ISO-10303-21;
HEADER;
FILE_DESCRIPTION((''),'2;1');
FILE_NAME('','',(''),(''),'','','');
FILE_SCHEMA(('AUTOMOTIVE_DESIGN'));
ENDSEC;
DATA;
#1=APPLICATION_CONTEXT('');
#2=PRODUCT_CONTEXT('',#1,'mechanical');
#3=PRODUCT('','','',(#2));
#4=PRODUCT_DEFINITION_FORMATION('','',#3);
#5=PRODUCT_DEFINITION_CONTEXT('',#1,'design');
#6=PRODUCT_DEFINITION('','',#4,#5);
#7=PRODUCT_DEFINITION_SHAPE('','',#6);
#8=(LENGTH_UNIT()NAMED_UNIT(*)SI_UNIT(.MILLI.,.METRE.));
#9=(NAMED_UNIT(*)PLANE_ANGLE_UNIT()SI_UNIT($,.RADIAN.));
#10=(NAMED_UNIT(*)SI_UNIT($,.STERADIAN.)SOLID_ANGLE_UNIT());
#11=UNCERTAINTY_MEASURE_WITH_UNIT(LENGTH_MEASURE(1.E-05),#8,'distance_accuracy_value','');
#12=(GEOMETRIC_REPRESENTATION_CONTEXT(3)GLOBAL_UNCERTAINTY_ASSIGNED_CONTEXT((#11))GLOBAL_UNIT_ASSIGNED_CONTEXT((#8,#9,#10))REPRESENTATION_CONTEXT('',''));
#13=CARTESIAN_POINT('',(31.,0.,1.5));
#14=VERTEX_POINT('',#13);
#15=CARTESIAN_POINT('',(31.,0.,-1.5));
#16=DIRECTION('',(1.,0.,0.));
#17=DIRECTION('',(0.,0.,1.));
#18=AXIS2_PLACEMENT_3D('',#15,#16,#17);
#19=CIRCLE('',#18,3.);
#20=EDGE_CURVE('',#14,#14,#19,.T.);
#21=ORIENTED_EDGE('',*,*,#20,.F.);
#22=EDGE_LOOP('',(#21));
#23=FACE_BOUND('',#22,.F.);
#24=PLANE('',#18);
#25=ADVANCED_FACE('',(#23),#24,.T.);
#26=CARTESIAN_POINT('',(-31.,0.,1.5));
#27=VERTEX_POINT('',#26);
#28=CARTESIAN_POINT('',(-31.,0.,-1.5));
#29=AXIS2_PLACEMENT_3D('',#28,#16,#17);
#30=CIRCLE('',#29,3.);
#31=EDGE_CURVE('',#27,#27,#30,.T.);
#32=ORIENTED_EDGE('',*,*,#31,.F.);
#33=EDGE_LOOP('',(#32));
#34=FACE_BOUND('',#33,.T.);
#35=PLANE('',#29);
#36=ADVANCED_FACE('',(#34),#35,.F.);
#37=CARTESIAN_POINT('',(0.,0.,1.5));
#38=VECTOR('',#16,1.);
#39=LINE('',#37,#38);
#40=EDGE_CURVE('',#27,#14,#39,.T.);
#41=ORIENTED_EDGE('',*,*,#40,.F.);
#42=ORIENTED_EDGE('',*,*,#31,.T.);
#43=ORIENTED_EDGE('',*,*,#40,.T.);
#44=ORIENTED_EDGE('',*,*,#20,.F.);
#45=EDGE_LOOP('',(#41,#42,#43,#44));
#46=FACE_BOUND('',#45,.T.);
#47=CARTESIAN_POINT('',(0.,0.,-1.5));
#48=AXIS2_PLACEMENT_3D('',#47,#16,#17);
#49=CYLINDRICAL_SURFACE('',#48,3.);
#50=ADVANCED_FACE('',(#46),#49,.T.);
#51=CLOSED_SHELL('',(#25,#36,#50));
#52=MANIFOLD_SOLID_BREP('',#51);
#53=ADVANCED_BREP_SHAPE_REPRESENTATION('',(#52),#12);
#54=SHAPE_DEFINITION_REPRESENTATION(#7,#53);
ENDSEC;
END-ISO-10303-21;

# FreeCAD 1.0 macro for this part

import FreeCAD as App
import Part
import Sketcher


def add_polygon(sketch, points):
    """Adds a closed chain of lines whose ends are joined by coincident constraints."""
    first, n = sketch.GeometryCount, len(points)
    for a, b in zip(points, points[1:] + points[:1]):
        sketch.addGeometry(Part.LineSegment(App.Vector(*a, 0), App.Vector(*b, 0)), False)
    for i in range(n):
        sketch.addConstraint(Sketcher.Constraint("Coincident", first + i, 2, first + (i + 1) % n, 1))

doc = App.newDocument("Part")
body = doc.addObject("PartDesign::Body", "Body")

# Sketch on XZ plane
sketch1 = doc.addObject("Sketcher::SketchObject", "Sketch")
body.addObject(sketch1)
sketch1.AttachmentSupport = (doc.XZ_Plane, [""])
sketch1.MapMode = "FlatFace"
add_polygon(sketch1, [(-31, 1.5), (-31, -1.5), (31, -1.5), (31, 1.5)])  # lines 0-3
sketch1.addGeometry(Part.LineSegment(App.Vector(-31, -1.5, 0), App.Vector(31, -1.5, 0)), True)  # axis
sketch1.addConstraint([
    Sketcher.Constraint("Vertical", 0),
    Sketcher.Constraint("Horizontal", 1),
    Sketcher.Constraint("Vertical", 2),
    Sketcher.Constraint("Horizontal", 3),
    Sketcher.Constraint("Horizontal", 4),
    Sketcher.Constraint("Coincident", 4, 1, 0, 2),
    Sketcher.Constraint("Symmetric", 0, 2, 2, 2, -1, 1),
    Sketcher.Constraint("Vertical", 2, 2, 4, 2),
    Sketcher.Constraint("DistanceX", 1, 1, 1, 2, 62.0),
    Sketcher.Constraint("DistanceY", 0, 2, 0, 1, 3.0),
])
revolution = doc.addObject("PartDesign::Revolution", "Revolution")
body.addObject(revolution)
revolution.Profile = sketch1
revolution.ReferenceAxis = (sketch1, ["Axis0"])
revolution.Angle = 360

doc.recompute()
